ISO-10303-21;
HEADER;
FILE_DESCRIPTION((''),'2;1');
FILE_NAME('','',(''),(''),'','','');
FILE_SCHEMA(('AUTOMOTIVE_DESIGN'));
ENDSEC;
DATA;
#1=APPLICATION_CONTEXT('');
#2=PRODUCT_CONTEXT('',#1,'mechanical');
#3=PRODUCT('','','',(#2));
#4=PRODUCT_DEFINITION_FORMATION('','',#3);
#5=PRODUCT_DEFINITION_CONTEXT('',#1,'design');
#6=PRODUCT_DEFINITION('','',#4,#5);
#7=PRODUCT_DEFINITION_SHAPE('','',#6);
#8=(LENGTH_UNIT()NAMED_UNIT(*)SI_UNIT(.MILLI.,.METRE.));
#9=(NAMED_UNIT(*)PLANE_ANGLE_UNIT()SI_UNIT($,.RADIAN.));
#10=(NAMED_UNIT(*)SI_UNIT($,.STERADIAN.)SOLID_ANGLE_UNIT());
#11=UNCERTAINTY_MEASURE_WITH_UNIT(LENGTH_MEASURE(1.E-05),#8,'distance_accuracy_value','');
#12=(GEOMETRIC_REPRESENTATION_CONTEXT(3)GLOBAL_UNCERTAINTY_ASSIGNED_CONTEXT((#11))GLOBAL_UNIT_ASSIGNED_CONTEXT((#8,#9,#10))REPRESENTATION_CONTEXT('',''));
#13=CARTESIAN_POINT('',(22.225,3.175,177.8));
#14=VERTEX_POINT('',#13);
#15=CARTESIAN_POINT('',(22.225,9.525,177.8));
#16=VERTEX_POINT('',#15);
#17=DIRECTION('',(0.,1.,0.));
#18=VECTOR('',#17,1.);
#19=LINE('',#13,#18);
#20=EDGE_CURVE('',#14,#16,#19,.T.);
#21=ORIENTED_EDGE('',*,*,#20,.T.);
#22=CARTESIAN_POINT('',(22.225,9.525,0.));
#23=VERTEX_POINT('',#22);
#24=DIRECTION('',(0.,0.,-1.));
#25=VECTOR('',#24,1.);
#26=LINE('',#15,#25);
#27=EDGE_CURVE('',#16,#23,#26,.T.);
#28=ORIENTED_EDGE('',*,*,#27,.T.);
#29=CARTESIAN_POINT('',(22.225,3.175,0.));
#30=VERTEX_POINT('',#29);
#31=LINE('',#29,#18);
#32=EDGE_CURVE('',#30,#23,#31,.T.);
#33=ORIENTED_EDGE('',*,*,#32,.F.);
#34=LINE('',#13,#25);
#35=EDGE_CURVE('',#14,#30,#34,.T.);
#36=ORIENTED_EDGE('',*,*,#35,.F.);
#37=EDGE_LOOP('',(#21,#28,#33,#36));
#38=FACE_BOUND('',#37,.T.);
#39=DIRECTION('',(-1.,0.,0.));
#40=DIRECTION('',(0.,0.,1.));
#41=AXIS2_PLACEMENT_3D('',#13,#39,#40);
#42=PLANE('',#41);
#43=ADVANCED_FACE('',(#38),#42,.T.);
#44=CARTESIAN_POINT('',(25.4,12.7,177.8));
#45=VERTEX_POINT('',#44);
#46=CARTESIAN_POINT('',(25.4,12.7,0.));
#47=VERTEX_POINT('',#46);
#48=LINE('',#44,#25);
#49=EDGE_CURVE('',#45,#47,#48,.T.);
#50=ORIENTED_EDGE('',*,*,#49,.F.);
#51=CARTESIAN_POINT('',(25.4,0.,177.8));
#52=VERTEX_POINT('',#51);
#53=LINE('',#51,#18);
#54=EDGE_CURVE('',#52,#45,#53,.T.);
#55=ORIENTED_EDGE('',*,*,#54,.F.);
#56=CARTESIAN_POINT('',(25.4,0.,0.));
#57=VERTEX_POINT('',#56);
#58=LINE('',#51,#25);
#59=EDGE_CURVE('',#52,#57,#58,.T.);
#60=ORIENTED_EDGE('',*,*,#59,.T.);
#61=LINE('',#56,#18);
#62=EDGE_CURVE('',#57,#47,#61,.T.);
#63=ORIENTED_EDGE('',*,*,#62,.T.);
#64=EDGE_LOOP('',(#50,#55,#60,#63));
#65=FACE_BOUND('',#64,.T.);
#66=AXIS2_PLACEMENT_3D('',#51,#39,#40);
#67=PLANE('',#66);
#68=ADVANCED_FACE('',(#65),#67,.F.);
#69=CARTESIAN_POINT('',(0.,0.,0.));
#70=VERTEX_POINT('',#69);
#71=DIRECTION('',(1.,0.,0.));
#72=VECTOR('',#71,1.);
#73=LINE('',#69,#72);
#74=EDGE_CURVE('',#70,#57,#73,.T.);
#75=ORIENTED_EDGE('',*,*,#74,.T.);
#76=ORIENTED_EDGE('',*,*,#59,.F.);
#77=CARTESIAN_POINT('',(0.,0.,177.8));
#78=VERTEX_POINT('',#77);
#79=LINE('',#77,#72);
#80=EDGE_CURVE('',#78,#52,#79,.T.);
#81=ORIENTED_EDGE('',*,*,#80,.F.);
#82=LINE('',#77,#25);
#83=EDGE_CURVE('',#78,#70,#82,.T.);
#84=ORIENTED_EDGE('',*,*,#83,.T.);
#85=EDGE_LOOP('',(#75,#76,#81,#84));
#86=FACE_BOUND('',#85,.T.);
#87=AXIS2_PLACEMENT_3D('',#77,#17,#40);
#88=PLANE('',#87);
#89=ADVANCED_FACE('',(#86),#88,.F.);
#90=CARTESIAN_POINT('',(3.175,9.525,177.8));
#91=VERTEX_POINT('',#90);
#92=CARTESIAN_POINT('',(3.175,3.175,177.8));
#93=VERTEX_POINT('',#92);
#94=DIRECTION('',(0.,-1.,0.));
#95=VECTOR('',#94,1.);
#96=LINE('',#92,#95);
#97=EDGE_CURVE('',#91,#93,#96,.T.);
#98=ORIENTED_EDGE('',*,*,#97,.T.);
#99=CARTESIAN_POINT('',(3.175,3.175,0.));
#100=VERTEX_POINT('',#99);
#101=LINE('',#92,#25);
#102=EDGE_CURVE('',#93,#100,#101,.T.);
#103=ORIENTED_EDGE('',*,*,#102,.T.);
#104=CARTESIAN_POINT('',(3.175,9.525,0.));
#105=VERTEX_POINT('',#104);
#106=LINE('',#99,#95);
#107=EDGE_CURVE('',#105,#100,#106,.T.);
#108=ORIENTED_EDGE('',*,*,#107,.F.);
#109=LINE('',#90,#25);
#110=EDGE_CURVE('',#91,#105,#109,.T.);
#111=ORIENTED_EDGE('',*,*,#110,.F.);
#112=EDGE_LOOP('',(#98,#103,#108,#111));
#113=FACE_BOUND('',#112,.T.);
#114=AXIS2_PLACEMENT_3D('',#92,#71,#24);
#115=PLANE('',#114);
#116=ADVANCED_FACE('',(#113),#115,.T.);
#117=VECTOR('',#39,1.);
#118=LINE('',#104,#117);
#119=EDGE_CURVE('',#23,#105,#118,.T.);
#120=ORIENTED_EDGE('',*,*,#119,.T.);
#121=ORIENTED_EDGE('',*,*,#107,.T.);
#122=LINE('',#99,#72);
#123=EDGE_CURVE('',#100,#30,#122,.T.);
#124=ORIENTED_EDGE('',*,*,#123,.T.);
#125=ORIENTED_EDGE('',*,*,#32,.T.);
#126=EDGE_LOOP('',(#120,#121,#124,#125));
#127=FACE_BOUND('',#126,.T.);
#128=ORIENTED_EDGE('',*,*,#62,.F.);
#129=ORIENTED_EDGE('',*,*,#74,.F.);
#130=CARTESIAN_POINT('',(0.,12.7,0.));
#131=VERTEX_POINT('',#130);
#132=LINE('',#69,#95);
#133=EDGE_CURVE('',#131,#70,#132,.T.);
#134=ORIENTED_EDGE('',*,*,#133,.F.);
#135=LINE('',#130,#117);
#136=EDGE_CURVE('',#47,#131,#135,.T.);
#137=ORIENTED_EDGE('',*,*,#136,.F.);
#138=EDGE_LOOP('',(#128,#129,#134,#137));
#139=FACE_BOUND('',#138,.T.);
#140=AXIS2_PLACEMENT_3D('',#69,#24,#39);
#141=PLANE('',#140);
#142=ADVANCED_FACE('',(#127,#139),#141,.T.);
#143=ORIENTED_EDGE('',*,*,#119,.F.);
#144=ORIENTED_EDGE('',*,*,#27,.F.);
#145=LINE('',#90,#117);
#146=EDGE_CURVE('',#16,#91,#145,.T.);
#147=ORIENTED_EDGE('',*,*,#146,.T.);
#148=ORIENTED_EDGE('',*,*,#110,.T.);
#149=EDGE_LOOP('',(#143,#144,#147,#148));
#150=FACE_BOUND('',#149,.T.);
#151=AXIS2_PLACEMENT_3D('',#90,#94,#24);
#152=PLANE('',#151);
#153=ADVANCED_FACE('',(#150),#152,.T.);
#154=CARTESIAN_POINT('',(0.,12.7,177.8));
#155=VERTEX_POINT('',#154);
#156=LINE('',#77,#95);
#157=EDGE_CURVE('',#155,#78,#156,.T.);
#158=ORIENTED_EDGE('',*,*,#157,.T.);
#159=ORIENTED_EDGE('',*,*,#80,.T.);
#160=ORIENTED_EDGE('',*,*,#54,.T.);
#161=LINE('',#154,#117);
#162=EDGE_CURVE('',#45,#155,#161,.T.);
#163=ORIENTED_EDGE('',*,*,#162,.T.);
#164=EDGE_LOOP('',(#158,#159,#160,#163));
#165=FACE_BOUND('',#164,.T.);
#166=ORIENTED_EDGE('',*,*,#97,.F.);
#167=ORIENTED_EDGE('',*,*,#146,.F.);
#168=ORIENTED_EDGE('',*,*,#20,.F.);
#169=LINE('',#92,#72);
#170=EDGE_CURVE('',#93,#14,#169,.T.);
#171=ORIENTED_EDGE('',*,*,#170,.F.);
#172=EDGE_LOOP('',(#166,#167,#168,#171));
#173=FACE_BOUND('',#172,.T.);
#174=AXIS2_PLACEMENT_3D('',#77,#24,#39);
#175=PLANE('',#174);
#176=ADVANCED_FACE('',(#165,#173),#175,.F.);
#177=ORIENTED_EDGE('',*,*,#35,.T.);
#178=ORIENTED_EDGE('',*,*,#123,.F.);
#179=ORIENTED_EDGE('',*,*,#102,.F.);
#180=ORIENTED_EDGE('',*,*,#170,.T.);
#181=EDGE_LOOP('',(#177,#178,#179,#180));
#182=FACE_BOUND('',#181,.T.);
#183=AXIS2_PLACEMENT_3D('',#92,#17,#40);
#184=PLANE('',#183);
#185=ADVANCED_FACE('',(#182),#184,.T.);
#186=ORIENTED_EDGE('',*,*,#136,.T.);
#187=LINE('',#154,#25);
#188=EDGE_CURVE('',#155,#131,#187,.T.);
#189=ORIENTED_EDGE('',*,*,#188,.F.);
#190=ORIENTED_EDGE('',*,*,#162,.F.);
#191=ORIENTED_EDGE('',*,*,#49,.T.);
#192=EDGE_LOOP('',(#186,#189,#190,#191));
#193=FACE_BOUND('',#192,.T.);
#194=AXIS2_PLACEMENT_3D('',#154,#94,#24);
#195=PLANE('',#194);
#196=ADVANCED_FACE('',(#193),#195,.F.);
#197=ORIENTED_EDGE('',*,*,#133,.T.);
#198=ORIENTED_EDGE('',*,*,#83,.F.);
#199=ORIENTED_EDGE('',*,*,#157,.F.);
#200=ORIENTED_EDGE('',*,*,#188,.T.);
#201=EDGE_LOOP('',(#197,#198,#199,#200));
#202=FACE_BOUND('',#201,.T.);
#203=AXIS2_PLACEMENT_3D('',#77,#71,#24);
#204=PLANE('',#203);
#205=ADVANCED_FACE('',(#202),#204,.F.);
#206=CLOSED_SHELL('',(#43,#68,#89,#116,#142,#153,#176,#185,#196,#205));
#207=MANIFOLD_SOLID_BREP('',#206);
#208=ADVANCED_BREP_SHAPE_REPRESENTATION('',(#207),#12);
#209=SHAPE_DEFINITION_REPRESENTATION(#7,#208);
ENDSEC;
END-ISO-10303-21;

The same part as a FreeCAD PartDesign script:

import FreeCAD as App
import Part
import Sketcher

V = App.Vector
Q = App.Units.Quantity

doc = App.newDocument("Part")
params = doc.addObject("Spreadsheet::Sheet", "Params")
for row, (alias, value) in enumerate([
    ("sketch1_width", "1 in"),
    ("sketch1_height", "0.5 in"),
    ("sketch1_width2", "0.75 in"),
    ("sketch1_height2", "0.25 in"),
    ("pad1_length", "7 in"),
], start=1):
    params.set(f"A{row}", alias)
    params.set(f"B{row}", "=" + value)
    params.setAlias(f"B{row}", alias)

body = doc.addObject("PartDesign::Body", "Body")

sketch1 = body.newObject("Sketcher::SketchObject", "Sketch")
sketch1.AttachmentSupport = (doc.getObject("XY_Plane"), [""])
sketch1.MapMode = "FlatFace"
sketch1.addGeometry([
    Part.LineSegment(V(0, 13, 0), V(0, 0, 0)),
    Part.LineSegment(V(0, 0, 0), V(25, 0, 0)),
    Part.LineSegment(V(25, 0, 0), V(25, 13, 0)),
    Part.LineSegment(V(25, 13, 0), V(0, 13, 0)),
    Part.LineSegment(V(22, 3, 0), V(3, 3, 0)),
    Part.LineSegment(V(3, 3, 0), V(3, 10, 0)),
    Part.LineSegment(V(3, 10, 0), V(22, 10, 0)),
    Part.LineSegment(V(22, 10, 0), V(22, 3, 0)),
], False)
sketch1.addConstraint([
    Sketcher.Constraint("Coincident", 0, 2, 1, 1),
    Sketcher.Constraint("Coincident", 1, 2, 2, 1),
    Sketcher.Constraint("Coincident", 2, 2, 3, 1),
    Sketcher.Constraint("Coincident", 3, 2, 0, 1),
    Sketcher.Constraint("Coincident", 4, 2, 5, 1),
    Sketcher.Constraint("Coincident", 5, 2, 6, 1),
    Sketcher.Constraint("Coincident", 6, 2, 7, 1),
    Sketcher.Constraint("Coincident", 7, 2, 4, 1),
    Sketcher.Constraint("Vertical", 0),
    Sketcher.Constraint("Horizontal", 1),
    Sketcher.Constraint("Vertical", 2),
    Sketcher.Constraint("Horizontal", 3),
    Sketcher.Constraint("Horizontal", 4),
    Sketcher.Constraint("Vertical", 5),
    Sketcher.Constraint("Horizontal", 6),
    Sketcher.Constraint("Vertical", 7),
    Sketcher.Constraint("Coincident", 0, 2, -1, 1),
    Sketcher.Constraint("DistanceX", 1, 1, 1, 2, Q("1 in")),
    Sketcher.Constraint("DistanceY", 0, 2, 0, 1, Q("0.5 in")),
    Sketcher.Constraint("DistanceX", 4, 2, 4, 1, Q("0.75 in")),
    Sketcher.Constraint("DistanceY", 5, 1, 5, 2, Q("0.25 in")),
    Sketcher.Constraint("DistanceX", -1, 1, 4, 2, Q("0.125 in")),
    Sketcher.Constraint("DistanceY", -1, 1, 4, 2, Q("0.125 in")),
])
sketch1.setExpression("Constraints[17]", "Params.sketch1_width")
sketch1.setExpression("Constraints[18]", "Params.sketch1_height")
sketch1.setExpression("Constraints[19]", "Params.sketch1_width2")
sketch1.setExpression("Constraints[20]", "Params.sketch1_height2")
pad1 = body.newObject("PartDesign::Pad", "Pad")
pad1.Profile = sketch1
pad1.setExpression("Length", "Params.pad1_length")

doc.recompute()
